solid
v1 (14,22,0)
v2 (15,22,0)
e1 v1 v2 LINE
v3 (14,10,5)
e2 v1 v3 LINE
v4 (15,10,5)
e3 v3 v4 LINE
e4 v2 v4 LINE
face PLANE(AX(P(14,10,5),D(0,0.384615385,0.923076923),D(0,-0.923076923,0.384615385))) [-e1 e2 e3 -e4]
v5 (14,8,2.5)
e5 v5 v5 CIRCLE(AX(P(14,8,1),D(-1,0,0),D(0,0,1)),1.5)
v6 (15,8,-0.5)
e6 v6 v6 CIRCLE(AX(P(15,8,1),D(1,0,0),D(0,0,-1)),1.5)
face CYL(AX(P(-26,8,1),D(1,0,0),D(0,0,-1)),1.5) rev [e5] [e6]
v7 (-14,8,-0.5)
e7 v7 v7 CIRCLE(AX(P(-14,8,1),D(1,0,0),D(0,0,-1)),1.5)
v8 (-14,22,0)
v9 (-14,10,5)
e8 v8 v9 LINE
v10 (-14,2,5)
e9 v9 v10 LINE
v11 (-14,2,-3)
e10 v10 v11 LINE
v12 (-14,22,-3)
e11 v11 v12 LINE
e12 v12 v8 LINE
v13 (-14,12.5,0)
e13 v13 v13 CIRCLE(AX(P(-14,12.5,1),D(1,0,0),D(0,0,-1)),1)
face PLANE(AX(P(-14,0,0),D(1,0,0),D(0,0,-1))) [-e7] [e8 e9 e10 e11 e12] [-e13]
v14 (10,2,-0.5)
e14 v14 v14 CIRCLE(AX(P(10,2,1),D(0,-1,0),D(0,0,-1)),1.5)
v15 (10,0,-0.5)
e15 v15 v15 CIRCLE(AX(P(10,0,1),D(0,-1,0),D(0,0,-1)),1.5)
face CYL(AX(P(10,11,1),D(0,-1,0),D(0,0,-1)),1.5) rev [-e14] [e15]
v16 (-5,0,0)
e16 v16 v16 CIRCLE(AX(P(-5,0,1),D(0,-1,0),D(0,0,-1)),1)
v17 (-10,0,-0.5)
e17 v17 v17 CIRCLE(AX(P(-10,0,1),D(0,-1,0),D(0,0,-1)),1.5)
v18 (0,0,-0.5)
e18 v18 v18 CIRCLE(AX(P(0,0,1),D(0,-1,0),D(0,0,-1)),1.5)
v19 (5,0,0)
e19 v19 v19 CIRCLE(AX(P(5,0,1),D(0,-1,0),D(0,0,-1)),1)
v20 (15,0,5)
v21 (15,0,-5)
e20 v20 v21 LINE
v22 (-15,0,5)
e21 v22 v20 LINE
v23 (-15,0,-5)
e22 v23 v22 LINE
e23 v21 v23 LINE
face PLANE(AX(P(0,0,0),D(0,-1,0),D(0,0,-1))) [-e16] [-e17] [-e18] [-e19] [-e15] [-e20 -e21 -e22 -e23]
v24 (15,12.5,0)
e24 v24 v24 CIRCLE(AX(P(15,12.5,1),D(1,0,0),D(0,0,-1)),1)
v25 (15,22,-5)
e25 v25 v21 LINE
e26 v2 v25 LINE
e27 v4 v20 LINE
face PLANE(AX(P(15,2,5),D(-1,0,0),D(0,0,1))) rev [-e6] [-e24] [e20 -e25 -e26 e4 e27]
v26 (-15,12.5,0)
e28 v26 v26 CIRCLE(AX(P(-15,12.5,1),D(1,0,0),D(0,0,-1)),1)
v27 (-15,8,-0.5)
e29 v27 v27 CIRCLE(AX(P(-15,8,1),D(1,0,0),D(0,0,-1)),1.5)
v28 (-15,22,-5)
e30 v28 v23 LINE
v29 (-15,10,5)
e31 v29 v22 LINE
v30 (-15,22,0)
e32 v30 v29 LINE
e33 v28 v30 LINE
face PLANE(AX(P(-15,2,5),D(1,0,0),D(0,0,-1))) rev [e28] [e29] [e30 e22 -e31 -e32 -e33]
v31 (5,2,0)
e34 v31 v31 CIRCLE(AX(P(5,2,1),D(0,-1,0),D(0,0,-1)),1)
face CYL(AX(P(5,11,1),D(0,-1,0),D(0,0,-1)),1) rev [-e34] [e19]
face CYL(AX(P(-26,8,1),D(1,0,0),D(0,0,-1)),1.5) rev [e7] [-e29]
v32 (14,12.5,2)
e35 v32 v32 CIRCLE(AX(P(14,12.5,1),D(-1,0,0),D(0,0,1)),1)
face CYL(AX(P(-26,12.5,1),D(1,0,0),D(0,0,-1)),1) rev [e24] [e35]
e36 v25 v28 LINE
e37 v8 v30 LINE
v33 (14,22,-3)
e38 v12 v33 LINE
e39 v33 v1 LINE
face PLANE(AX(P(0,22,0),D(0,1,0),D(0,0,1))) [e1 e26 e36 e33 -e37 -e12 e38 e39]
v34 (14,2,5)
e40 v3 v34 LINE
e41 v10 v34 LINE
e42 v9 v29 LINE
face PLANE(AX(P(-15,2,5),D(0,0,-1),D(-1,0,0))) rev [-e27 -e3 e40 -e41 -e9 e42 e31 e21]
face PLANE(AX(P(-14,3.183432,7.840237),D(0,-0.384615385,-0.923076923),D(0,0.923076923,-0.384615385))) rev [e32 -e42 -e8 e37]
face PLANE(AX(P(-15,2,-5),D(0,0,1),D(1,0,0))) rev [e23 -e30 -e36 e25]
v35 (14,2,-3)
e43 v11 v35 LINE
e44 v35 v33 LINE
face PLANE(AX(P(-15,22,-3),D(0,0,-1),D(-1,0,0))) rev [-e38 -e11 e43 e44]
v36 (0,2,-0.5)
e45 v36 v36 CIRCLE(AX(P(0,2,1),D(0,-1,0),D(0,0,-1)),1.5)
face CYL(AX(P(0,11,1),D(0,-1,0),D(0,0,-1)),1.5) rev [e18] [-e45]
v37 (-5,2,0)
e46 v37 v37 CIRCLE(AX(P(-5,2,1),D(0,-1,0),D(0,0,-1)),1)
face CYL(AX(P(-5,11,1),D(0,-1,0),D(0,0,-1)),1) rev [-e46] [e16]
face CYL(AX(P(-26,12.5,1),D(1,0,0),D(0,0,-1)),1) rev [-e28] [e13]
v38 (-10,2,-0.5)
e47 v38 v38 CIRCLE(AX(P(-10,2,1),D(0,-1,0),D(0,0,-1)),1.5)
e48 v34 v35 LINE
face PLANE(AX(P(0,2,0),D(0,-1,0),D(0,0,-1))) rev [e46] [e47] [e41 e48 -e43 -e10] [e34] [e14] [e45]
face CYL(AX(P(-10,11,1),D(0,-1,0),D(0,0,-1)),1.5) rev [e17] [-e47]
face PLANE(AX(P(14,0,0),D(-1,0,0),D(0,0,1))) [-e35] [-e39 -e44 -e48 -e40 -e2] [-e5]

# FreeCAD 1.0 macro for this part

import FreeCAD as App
import Part
import Sketcher

V = App.Vector


def add_polygon(sketch, points):
    """Adds a closed chain of lines whose ends are joined by coincident constraints."""
    first, n = sketch.GeometryCount, len(points)
    for a, b in zip(points, points[1:] + points[:1]):
        sketch.addGeometry(Part.LineSegment(App.Vector(*a, 0), App.Vector(*b, 0)), False)
    for i in range(n):
        sketch.addConstraint(Sketcher.Constraint("Coincident", first + i, 2, first + (i + 1) % n, 1))

doc = App.newDocument("Part")
params = doc.addObject("Spreadsheet::Sheet", "Params")
for row, (alias, value) in enumerate([
    ("sketch1_width", "30 mm"),
    ("sketch1_height", "10 mm"),
    ("pad1_length", "2 mm"),
    ("sketch2_width", "30 mm"),
    ("sketch2_height", "2 mm"),
    ("pad2_length", "20 mm"),
    ("sketch3_width", "8 mm"),
    ("sketch3_width2", "20 mm"),
    ("sketch3_height", "3 mm"),
    ("pad3_length", "1 mm"),
    ("sketch4_width", "8 mm"),
    ("sketch4_width2", "20 mm"),
    ("sketch4_height", "3 mm"),
    ("pad4_length", "1 mm"),
    ("sketch5_diameter", "3 mm"),
    ("sketch5_diameter2", "2 mm"),
    ("pocket1_length", "11 mm"),
    ("sketch6_diameter", "3 mm"),
    ("sketch6_diameter2", "2 mm"),
    ("pocket2_length", "41 mm"),
], start=1):
    params.set(f"A{row}", alias)
    params.set(f"B{row}", "=" + value)
    params.setAlias(f"B{row}", alias)

body = doc.addObject("PartDesign::Body", "Body")

# Sketch on XZ plane
sketch1 = body.newObject("Sketcher::SketchObject", "Sketch")
sketch1.AttachmentSupport = (doc.getObject("XZ_Plane"), [""])
sketch1.MapMode = "FlatFace"
add_polygon(sketch1, [(-15, -5), (-15, 5), (15, 5), (15, -5)])  # lines 0-3
sketch1.addConstraint([
    Sketcher.Constraint("Vertical", 0),
    Sketcher.Constraint("Horizontal", 1),
    Sketcher.Constraint("Vertical", 2),
    Sketcher.Constraint("Horizontal", 3),
    Sketcher.Constraint("Symmetric", 0, 2, 2, 2, -1, 1),
    Sketcher.Constraint("DistanceX", 1, 1, 1, 2, 30.0),
    Sketcher.Constraint("DistanceY", 0, 1, 0, 2, 10.0),
])
sketch1.setExpression("Constraints[9]", "Params.sketch1_width")
sketch1.setExpression("Constraints[10]", "Params.sketch1_height")
pad1 = body.newObject("PartDesign::Pad", "Pad")
pad1.Profile = sketch1
pad1.setExpression("Length", "Params.pad1_length")
pad1.Reversed = True

# Sketch on XZ plane
sketch2 = body.newObject("Sketcher::SketchObject", "Sketch001")
sketch2.AttachmentSupport = (doc.getObject("XZ_Plane"), [""])
sketch2.MapMode = "FlatFace"
sketch2.AttachmentOffset = App.Placement(V(0, 0, -2), App.Rotation())
add_polygon(sketch2, [(-15, -5), (-15, -3), (15, -3), (15, -5)])  # lines 0-3
sketch2.addConstraint([
    Sketcher.Constraint("Vertical", 0),
    Sketcher.Constraint("Horizontal", 1),
    Sketcher.Constraint("Vertical", 2),
    Sketcher.Constraint("Horizontal", 3),
    Sketcher.Constraint("DistanceX", 1, 1, 1, 2, 30.0),
    Sketcher.Constraint("DistanceY", 0, 1, 0, 2, 2.0),
    Sketcher.Constraint("DistanceX", 0, 2, -1, 1, 15.0),
    Sketcher.Constraint("DistanceY", 0, 2, -1, 1, 3.0),
])
sketch2.setExpression("Constraints[8]", "Params.sketch2_width")
sketch2.setExpression("Constraints[9]", "Params.sketch2_height")
pad2 = body.newObject("PartDesign::Pad", "Pad001")
pad2.Profile = sketch2
pad2.setExpression("Length", "Params.pad2_length")
pad2.Reversed = True

# Sketch on YZ plane
sketch3 = body.newObject("Sketcher::SketchObject", "Sketch002")
sketch3.AttachmentSupport = (doc.getObject("YZ_Plane"), [""])
sketch3.MapMode = "FlatFace"
sketch3.AttachmentOffset = App.Placement(V(0, 0, 15), App.Rotation())
add_polygon(sketch3, [(10, 5), (2, 5), (2, -3), (22, -3), (22, 0)])  # lines 0-4
sketch3.addConstraint([
    Sketcher.Constraint("Horizontal", 0),
    Sketcher.Constraint("Vertical", 1),
    Sketcher.Constraint("Horizontal", 2),
    Sketcher.Constraint("Vertical", 3),
    Sketcher.Constraint("PointOnObject", 3, 2, -1),
    Sketcher.Constraint("Equal", 0, 1),
    Sketcher.Constraint("DistanceX", 0, 2, 0, 1, 8.0),
    Sketcher.Constraint("DistanceX", 2, 1, 2, 2, 20.0),
    Sketcher.Constraint("DistanceY", 3, 1, 3, 2, 3.0),
    Sketcher.Constraint("DistanceX", -1, 1, 0, 2, 2.0),
])
sketch3.setExpression("Constraints[11]", "Params.sketch3_width")
sketch3.setExpression("Constraints[12]", "Params.sketch3_width2")
sketch3.setExpression("Constraints[13]", "Params.sketch3_height")
pad3 = body.newObject("PartDesign::Pad", "Pad002")
pad3.Profile = sketch3
pad3.setExpression("Length", "Params.pad3_length")
pad3.Reversed = True

# Sketch on YZ plane
sketch4 = body.newObject("Sketcher::SketchObject", "Sketch003")
sketch4.AttachmentSupport = (doc.getObject("YZ_Plane"), [""])
sketch4.MapMode = "FlatFace"
sketch4.AttachmentOffset = App.Placement(V(0, 0, -15), App.Rotation())
add_polygon(sketch4, [(10, 5), (2, 5), (2, -3), (22, -3), (22, 0)])  # lines 0-4
sketch4.addConstraint([
    Sketcher.Constraint("Horizontal", 0),
    Sketcher.Constraint("Vertical", 1),
    Sketcher.Constraint("Horizontal", 2),
    Sketcher.Constraint("Vertical", 3),
    Sketcher.Constraint("PointOnObject", 3, 2, -1),
    Sketcher.Constraint("Equal", 0, 1),
    Sketcher.Constraint("DistanceX", 0, 2, 0, 1, 8.0),
    Sketcher.Constraint("DistanceX", 2, 1, 2, 2, 20.0),
    Sketcher.Constraint("DistanceY", 3, 1, 3, 2, 3.0),
    Sketcher.Constraint("DistanceX", -1, 1, 0, 2, 2.0),
])
sketch4.setExpression("Constraints[11]", "Params.sketch4_width")
sketch4.setExpression("Constraints[12]", "Params.sketch4_width2")
sketch4.setExpression("Constraints[13]", "Params.sketch4_height")
pad4 = body.newObject("PartDesign::Pad", "Pad003")
pad4.Profile = sketch4
pad4.setExpression("Length", "Params.pad4_length")

# Sketch on XZ plane
sketch5 = body.newObject("Sketcher::SketchObject", "Sketch004")
sketch5.AttachmentSupport = (doc.getObject("XZ_Plane"), [""])
sketch5.MapMode = "FlatFace"
sketch5.addGeometry([
    Part.Circle(V(0, 1, 0), V(0, 0, 1), 1.5),  # 0
    Part.Circle(V(5, 1, 0), V(0, 0, 1), 1),  # 1
    Part.Circle(V(-5, 1, 0), V(0, 0, 1), 1),  # 2
    Part.Circle(V(10, 1, 0), V(0, 0, 1), 1.5),  # 3
    Part.Circle(V(-10, 1, 0), V(0, 0, 1), 1.5),  # 4
], False)
sketch5.addConstraint([
    Sketcher.Constraint("Equal", 1, 2),
    Sketcher.Constraint("Equal", 0, 3),
    Sketcher.Constraint("Equal", 3, 4),
    Sketcher.Constraint("Symmetric", 1, 3, 2, 3, -2),
    Sketcher.Constraint("Symmetric", 3, 3, 4, 3, -2),
    Sketcher.Constraint("PointOnObject", 0, 3, -2),
    Sketcher.Constraint("Horizontal", 0, 3, 1, 3),
    Sketcher.Constraint("Horizontal", 2, 3, 3, 3),
    Sketcher.Constraint("Diameter", 0, 3.0),
    Sketcher.Constraint("Diameter", 1, 2.0),
    Sketcher.Constraint("DistanceY", -1, 1, 0, 3, 1.0),
    Sketcher.Constraint("DistanceX", -1, 1, 1, 3, 5.0),
    Sketcher.Constraint("DistanceX", -1, 1, 3, 3, 10.0),
])
sketch5.setExpression("Constraints[8]", "Params.sketch5_diameter")
sketch5.setExpression("Constraints[9]", "Params.sketch5_diameter2")
pocket1 = body.newObject("PartDesign::Pocket", "Pocket")
pocket1.Profile = sketch5
pocket1.setExpression("Length", "Params.pocket1_length")

# Sketch on YZ plane
sketch6 = body.newObject("Sketcher::SketchObject", "Sketch005")
sketch6.AttachmentSupport = (doc.getObject("YZ_Plane"), [""])
sketch6.MapMode = "FlatFace"
sketch6.AttachmentOffset = App.Placement(V(0, 0, 15), App.Rotation())
sketch6.addGeometry([
    Part.Circle(V(8, 1, 0), V(0, 0, 1), 1.5),
    Part.Circle(V(12.5, 1, 0), V(0, 0, 1), 1),
], False)
sketch6.addConstraint([
    Sketcher.Constraint("Horizontal", 0, 3, 1, 3),
    Sketcher.Constraint("Diameter", 0, 3.0),
    Sketcher.Constraint("Diameter", 1, 2.0),
    Sketcher.Constraint("DistanceX", -1, 1, 0, 3, 8.0),
    Sketcher.Constraint("DistanceY", -1, 1, 0, 3, 1.0),
    Sketcher.Constraint("DistanceX", -1, 1, 1, 3, 12.5),
])
sketch6.setExpression("Constraints[1]", "Params.sketch6_diameter")
sketch6.setExpression("Constraints[2]", "Params.sketch6_diameter2")
pocket2 = body.newObject("PartDesign::Pocket", "Pocket001")
pocket2.Profile = sketch6
pocket2.setExpression("Length", "Params.pocket2_length")

doc.recompute()
